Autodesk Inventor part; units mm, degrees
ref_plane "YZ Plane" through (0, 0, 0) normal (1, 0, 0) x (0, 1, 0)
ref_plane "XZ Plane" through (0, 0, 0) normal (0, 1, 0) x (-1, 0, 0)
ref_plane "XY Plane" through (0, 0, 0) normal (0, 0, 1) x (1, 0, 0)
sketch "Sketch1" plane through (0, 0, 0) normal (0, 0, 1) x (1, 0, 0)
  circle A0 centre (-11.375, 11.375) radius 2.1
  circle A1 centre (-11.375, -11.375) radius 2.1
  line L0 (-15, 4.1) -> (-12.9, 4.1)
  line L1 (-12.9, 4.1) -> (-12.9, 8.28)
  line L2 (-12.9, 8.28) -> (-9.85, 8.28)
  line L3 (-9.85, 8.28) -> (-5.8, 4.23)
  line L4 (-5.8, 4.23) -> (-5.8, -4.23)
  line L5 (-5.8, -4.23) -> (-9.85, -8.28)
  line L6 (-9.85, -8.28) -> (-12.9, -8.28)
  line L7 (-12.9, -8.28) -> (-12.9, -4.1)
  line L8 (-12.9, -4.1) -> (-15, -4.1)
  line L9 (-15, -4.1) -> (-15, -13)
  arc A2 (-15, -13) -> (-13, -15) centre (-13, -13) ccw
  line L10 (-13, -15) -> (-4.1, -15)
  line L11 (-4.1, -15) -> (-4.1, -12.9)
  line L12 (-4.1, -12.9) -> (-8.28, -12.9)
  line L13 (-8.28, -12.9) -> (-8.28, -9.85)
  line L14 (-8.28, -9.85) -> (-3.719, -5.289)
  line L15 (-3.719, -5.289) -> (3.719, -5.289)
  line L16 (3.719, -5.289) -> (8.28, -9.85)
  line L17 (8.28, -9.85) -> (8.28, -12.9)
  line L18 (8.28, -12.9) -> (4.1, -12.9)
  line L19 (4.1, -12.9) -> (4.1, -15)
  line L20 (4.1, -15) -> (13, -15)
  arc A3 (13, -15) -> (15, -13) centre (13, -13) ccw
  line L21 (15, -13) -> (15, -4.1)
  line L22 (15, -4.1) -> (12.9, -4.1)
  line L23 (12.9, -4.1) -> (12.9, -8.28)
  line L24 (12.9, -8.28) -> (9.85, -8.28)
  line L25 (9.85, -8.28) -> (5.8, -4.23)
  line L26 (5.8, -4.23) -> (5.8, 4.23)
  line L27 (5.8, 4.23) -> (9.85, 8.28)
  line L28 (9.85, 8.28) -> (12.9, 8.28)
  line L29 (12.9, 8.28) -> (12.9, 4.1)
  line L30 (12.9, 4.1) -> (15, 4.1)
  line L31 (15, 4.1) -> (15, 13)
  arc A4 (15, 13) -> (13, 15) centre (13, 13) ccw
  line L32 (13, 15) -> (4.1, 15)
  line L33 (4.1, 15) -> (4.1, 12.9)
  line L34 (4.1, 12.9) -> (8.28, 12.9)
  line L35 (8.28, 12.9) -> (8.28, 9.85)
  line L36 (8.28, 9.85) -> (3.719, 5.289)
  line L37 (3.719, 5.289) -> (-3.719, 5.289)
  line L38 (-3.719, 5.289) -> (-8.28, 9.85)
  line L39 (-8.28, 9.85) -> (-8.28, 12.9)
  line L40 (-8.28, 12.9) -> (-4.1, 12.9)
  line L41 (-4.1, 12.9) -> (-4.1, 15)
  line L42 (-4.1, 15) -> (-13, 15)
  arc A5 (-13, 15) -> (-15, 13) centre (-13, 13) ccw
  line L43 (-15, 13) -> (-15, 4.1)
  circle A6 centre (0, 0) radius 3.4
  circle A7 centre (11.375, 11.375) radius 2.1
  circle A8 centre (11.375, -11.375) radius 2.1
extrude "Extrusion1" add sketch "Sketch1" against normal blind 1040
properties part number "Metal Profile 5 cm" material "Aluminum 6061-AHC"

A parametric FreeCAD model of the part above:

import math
import FreeCAD as App
import Part
import Sketcher
from FreeCAD import Vector

doc = App.newDocument("Part")
body = doc.addObject("PartDesign::Body", "Body")

# Sketch on XY plane
sketch1 = body.newObject("Sketcher::SketchObject", "Sketch")
sketch1.AttachmentSupport = (doc.getObject("XY_Plane"), [""])
sketch1.MapMode = "FlatFace"
sketch1.addGeometry(Part.LineSegment(Vector(-15, 13, 0), Vector(-15, 4.1, 0)), False)
sketch1.addGeometry(Part.LineSegment(Vector(-15, 4.1, 0), Vector(-12.9, 4.1, 0)), False)
sketch1.addGeometry(Part.LineSegment(Vector(-12.9, 4.1, 0), Vector(-12.9, 8.28, 0)), False)
sketch1.addGeometry(Part.LineSegment(Vector(-12.9, 8.28, 0), Vector(-9.85, 8.28, 0)), False)
sketch1.addGeometry(Part.LineSegment(Vector(-9.85, 8.28, 0), Vector(-5.8, 4.23, 0)), False)
sketch1.addGeometry(Part.LineSegment(Vector(-5.8, 4.23, 0), Vector(-5.8, -4.23, 0)), False)
sketch1.addGeometry(Part.LineSegment(Vector(-5.8, -4.23, 0), Vector(-9.85, -8.28, 0)), False)
sketch1.addGeometry(Part.LineSegment(Vector(-9.85, -8.28, 0), Vector(-12.9, -8.28, 0)), False)
sketch1.addGeometry(Part.LineSegment(Vector(-12.9, -8.28, 0), Vector(-12.9, -4.1, 0)), False)
sketch1.addGeometry(Part.LineSegment(Vector(-12.9, -4.1, 0), Vector(-15, -4.1, 0)), False)
sketch1.addGeometry(Part.LineSegment(Vector(-15, -4.1, 0), Vector(-15, -13, 0)), False)
sketch1.addGeometry(Part.ArcOfCircle(Part.Circle(Vector(-13, -13, 0), Vector(0, 0, 1), 2), math.radians(180), math.radians(270)), False)
sketch1.addGeometry(Part.LineSegment(Vector(-13, -15, 0), Vector(-4.1, -15, 0)), False)
sketch1.addGeometry(Part.LineSegment(Vector(-4.1, -15, 0), Vector(-4.1, -12.9, 0)), False)
sketch1.addGeometry(Part.LineSegment(Vector(-4.1, -12.9, 0), Vector(-8.28, -12.9, 0)), False)
sketch1.addGeometry(Part.LineSegment(Vector(-8.28, -12.9, 0), Vector(-8.28, -9.85, 0)), False)
sketch1.addGeometry(Part.LineSegment(Vector(-8.28, -9.85, 0), Vector(-3.719, -5.289, 0)), False)
sketch1.addGeometry(Part.LineSegment(Vector(-3.719, -5.289, 0), Vector(3.719, -5.289, 0)), False)
sketch1.addGeometry(Part.LineSegment(Vector(3.719, -5.289, 0), Vector(8.28, -9.85, 0)), False)
sketch1.addGeometry(Part.LineSegment(Vector(8.28, -9.85, 0), Vector(8.28, -12.9, 0)), False)
sketch1.addGeometry(Part.LineSegment(Vector(8.28, -12.9, 0), Vector(4.1, -12.9, 0)), False)
sketch1.addGeometry(Part.LineSegment(Vector(4.1, -12.9, 0), Vector(4.1, -15, 0)), False)
sketch1.addGeometry(Part.LineSegment(Vector(4.1, -15, 0), Vector(13, -15, 0)), False)
sketch1.addGeometry(Part.ArcOfCircle(Part.Circle(Vector(13, -13, 0), Vector(0, 0, 1), 2), math.radians(-90), math.radians(0)), False)
sketch1.addGeometry(Part.LineSegment(Vector(15, -13, 0), Vector(15, -4.1, 0)), False)
sketch1.addGeometry(Part.LineSegment(Vector(15, -4.1, 0), Vector(12.9, -4.1, 0)), False)
sketch1.addGeometry(Part.LineSegment(Vector(12.9, -4.1, 0), Vector(12.9, -8.28, 0)), False)
sketch1.addGeometry(Part.LineSegment(Vector(12.9, -8.28, 0), Vector(9.85, -8.28, 0)), False)
sketch1.addGeometry(Part.LineSegment(Vector(9.85, -8.28, 0), Vector(5.8, -4.23, 0)), False)
sketch1.addGeometry(Part.LineSegment(Vector(5.8, -4.23, 0), Vector(5.8, 4.23, 0)), False)
sketch1.addGeometry(Part.LineSegment(Vector(5.8, 4.23, 0), Vector(9.85, 8.28, 0)), False)
sketch1.addGeometry(Part.LineSegment(Vector(9.85, 8.28, 0), Vector(12.9, 8.28, 0)), False)
sketch1.addGeometry(Part.LineSegment(Vector(12.9, 8.28, 0), Vector(12.9, 4.1, 0)), False)
sketch1.addGeometry(Part.LineSegment(Vector(12.9, 4.1, 0), Vector(15, 4.1, 0)), False)
sketch1.addGeometry(Part.LineSegment(Vector(15, 4.1, 0), Vector(15, 13, 0)), False)
sketch1.addGeometry(Part.ArcOfCircle(Part.Circle(Vector(13, 13, 0), Vector(0, 0, 1), 2), math.radians(0), math.radians(90)), False)
sketch1.addGeometry(Part.LineSegment(Vector(13, 15, 0), Vector(4.1, 15, 0)), False)
sketch1.addGeometry(Part.LineSegment(Vector(4.1, 15, 0), Vector(4.1, 12.9, 0)), False)
sketch1.addGeometry(Part.LineSegment(Vector(4.1, 12.9, 0), Vector(8.28, 12.9, 0)), False)
sketch1.addGeometry(Part.LineSegment(Vector(8.28, 12.9, 0), Vector(8.28, 9.85, 0)), False)
sketch1.addGeometry(Part.LineSegment(Vector(8.28, 9.85, 0), Vector(3.719, 5.289, 0)), False)
sketch1.addGeometry(Part.LineSegment(Vector(3.719, 5.289, 0), Vector(-3.719, 5.289, 0)), False)
sketch1.addGeometry(Part.LineSegment(Vector(-3.719, 5.289, 0), Vector(-8.28, 9.85, 0)), False)
sketch1.addGeometry(Part.LineSegment(Vector(-8.28, 9.85, 0), Vector(-8.28, 12.9, 0)), False)
sketch1.addGeometry(Part.LineSegment(Vector(-8.28, 12.9, 0), Vector(-4.1, 12.9, 0)), False)
sketch1.addGeometry(Part.LineSegment(Vector(-4.1, 12.9, 0), Vector(-4.1, 15, 0)), False)
sketch1.addGeometry(Part.LineSegment(Vector(-4.1, 15, 0), Vector(-13, 15, 0)), False)
sketch1.addGeometry(Part.ArcOfCircle(Part.Circle(Vector(-13, 13, 0), Vector(0, 0, 1), 2), math.radians(90), math.radians(180)), False)
sketch1.addGeometry(Part.Circle(Vector(-11.375, -11.375, 0), Vector(0, 0, 1), 2.1), False)
sketch1.addGeometry(Part.Circle(Vector(11.375, -11.375, 0), Vector(0, 0, 1), 2.1), False)
sketch1.addGeometry(Part.Circle(Vector(-11.375, 11.375, 0), Vector(0, 0, 1), 2.1), False)
sketch1.addGeometry(Part.Circle(Vector(0, 0, 0), Vector(0, 0, 1), 3.4), False)
sketch1.addGeometry(Part.Circle(Vector(11.375, 11.375, 0), Vector(0, 0, 1), 2.1), False)
sketch1.addConstraint(Sketcher.Constraint("Coincident", 0, 2, 1, 1))
sketch1.addConstraint(Sketcher.Constraint("Coincident", 1, 2, 2, 1))
sketch1.addConstraint(Sketcher.Constraint("Coincident", 2, 2, 3, 1))
sketch1.addConstraint(Sketcher.Constraint("Coincident", 3, 2, 4, 1))
sketch1.addConstraint(Sketcher.Constraint("Coincident", 4, 2, 5, 1))
sketch1.addConstraint(Sketcher.Constraint("Coincident", 5, 2, 6, 1))
sketch1.addConstraint(Sketcher.Constraint("Coincident", 6, 2, 7, 1))
sketch1.addConstraint(Sketcher.Constraint("Coincident", 7, 2, 8, 1))
sketch1.addConstraint(Sketcher.Constraint("Coincident", 8, 2, 9, 1))
sketch1.addConstraint(Sketcher.Constraint("Coincident", 9, 2, 10, 1))
sketch1.addConstraint(Sketcher.Constraint("Tangent", 10, 2, 11, 1))
sketch1.addConstraint(Sketcher.Constraint("Tangent", 11, 2, 12, 1))
sketch1.addConstraint(Sketcher.Constraint("Coincident", 12, 2, 13, 1))
sketch1.addConstraint(Sketcher.Constraint("Coincident", 13, 2, 14, 1))
sketch1.addConstraint(Sketcher.Constraint("Coincident", 14, 2, 15, 1))
sketch1.addConstraint(Sketcher.Constraint("Coincident", 15, 2, 16, 1))
sketch1.addConstraint(Sketcher.Constraint("Coincident", 16, 2, 17, 1))
sketch1.addConstraint(Sketcher.Constraint("Coincident", 17, 2, 18, 1))
sketch1.addConstraint(Sketcher.Constraint("Coincident", 18, 2, 19, 1))
sketch1.addConstraint(Sketcher.Constraint("Coincident", 19, 2, 20, 1))
sketch1.addConstraint(Sketcher.Constraint("Coincident", 20, 2, 21, 1))
sketch1.addConstraint(Sketcher.Constraint("Coincident", 21, 2, 22, 1))
sketch1.addConstraint(Sketcher.Constraint("Tangent", 22, 2, 23, 1))
sketch1.addConstraint(Sketcher.Constraint("Tangent", 23, 2, 24, 1))
sketch1.addConstraint(Sketcher.Constraint("Coincident", 24, 2, 25, 1))
sketch1.addConstraint(Sketcher.Constraint("Coincident", 25, 2, 26, 1))
sketch1.addConstraint(Sketcher.Constraint("Coincident", 26, 2, 27, 1))
sketch1.addConstraint(Sketcher.Constraint("Coincident", 27, 2, 28, 1))
sketch1.addConstraint(Sketcher.Constraint("Coincident", 28, 2, 29, 1))
sketch1.addConstraint(Sketcher.Constraint("Coincident", 29, 2, 30, 1))
sketch1.addConstraint(Sketcher.Constraint("Coincident", 30, 2, 31, 1))
sketch1.addConstraint(Sketcher.Constraint("Coincident", 31, 2, 32, 1))
sketch1.addConstraint(Sketcher.Constraint("Coincident", 32, 2, 33, 1))
sketch1.addConstraint(Sketcher.Constraint("Coincident", 33, 2, 34, 1))
sketch1.addConstraint(Sketcher.Constraint("Tangent", 34, 2, 35, 1))
sketch1.addConstraint(Sketcher.Constraint("Tangent", 35, 2, 36, 1))
sketch1.addConstraint(Sketcher.Constraint("Coincident", 36, 2, 37, 1))
sketch1.addConstraint(Sketcher.Constraint("Coincident", 37, 2, 38, 1))
sketch1.addConstraint(Sketcher.Constraint("Coincident", 38, 2, 39, 1))
sketch1.addConstraint(Sketcher.Constraint("Coincident", 39, 2, 40, 1))
sketch1.addConstraint(Sketcher.Constraint("Coincident", 40, 2, 41, 1))
sketch1.addConstraint(Sketcher.Constraint("Coincident", 41, 2, 42, 1))
sketch1.addConstraint(Sketcher.Constraint("Coincident", 42, 2, 43, 1))
sketch1.addConstraint(Sketcher.Constraint("Coincident", 43, 2, 44, 1))
sketch1.addConstraint(Sketcher.Constraint("Coincident", 44, 2, 45, 1))
sketch1.addConstraint(Sketcher.Constraint("Coincident", 45, 2, 46, 1))
sketch1.addConstraint(Sketcher.Constraint("Tangent", 46, 2, 47, 1))
sketch1.addConstraint(Sketcher.Constraint("Tangent", 47, 2, 0, 1))
sketch1.addConstraint(Sketcher.Constraint("Vertical", 0))
sketch1.addConstraint(Sketcher.Constraint("Horizontal", 1))
sketch1.addConstraint(Sketcher.Constraint("Vertical", 2))
sketch1.addConstraint(Sketcher.Constraint("Horizontal", 3))
sketch1.addConstraint(Sketcher.Constraint("Vertical", 5))
sketch1.addConstraint(Sketcher.Constraint("Horizontal", 7))
sketch1.addConstraint(Sketcher.Constraint("Vertical", 8))
sketch1.addConstraint(Sketcher.Constraint("Horizontal", 9))
sketch1.addConstraint(Sketcher.Constraint("Vertical", 10))
sketch1.addConstraint(Sketcher.Constraint("Horizontal", 12))
sketch1.addConstraint(Sketcher.Constraint("Vertical", 13))
sketch1.addConstraint(Sketcher.Constraint("Horizontal", 14))
sketch1.addConstraint(Sketcher.Constraint("Vertical", 15))
sketch1.addConstraint(Sketcher.Constraint("Horizontal", 17))
sketch1.addConstraint(Sketcher.Constraint("Vertical", 19))
sketch1.addConstraint(Sketcher.Constraint("Horizontal", 20))
sketch1.addConstraint(Sketcher.Constraint("Vertical", 21))
sketch1.addConstraint(Sketcher.Constraint("Horizontal", 22))
sketch1.addConstraint(Sketcher.Constraint("Vertical", 24))
sketch1.addConstraint(Sketcher.Constraint("Horizontal", 25))
sketch1.addConstraint(Sketcher.Constraint("Vertical", 26))
sketch1.addConstraint(Sketcher.Constraint("Horizontal", 27))
sketch1.addConstraint(Sketcher.Constraint("Vertical", 29))
sketch1.addConstraint(Sketcher.Constraint("Horizontal", 31))
sketch1.addConstraint(Sketcher.Constraint("Vertical", 32))
sketch1.addConstraint(Sketcher.Constraint("Horizontal", 33))
sketch1.addConstraint(Sketcher.Constraint("Vertical", 34))
sketch1.addConstraint(Sketcher.Constraint("Horizontal", 36))
sketch1.addConstraint(Sketcher.Constraint("Vertical", 37))
sketch1.addConstraint(Sketcher.Constraint("Horizontal", 38))
sketch1.addConstraint(Sketcher.Constraint("Vertical", 39))
sketch1.addConstraint(Sketcher.Constraint("Horizontal", 41))
sketch1.addConstraint(Sketcher.Constraint("Vertical", 43))
sketch1.addConstraint(Sketcher.Constraint("Horizontal", 44))
sketch1.addConstraint(Sketcher.Constraint("Vertical", 45))
sketch1.addConstraint(Sketcher.Constraint("Horizontal", 46))
sketch1.addConstraint(Sketcher.Constraint("Coincident", 51, 3, -1, 1))
sketch1.addConstraint(Sketcher.Constraint("Equal", 11, 23))
sketch1.addConstraint(Sketcher.Constraint("Equal", 23, 35))
sketch1.addConstraint(Sketcher.Constraint("Equal", 35, 47))
sketch1.addConstraint(Sketcher.Constraint("Equal", 48, 49))
sketch1.addConstraint(Sketcher.Constraint("Equal", 49, 50))
sketch1.addConstraint(Sketcher.Constraint("Equal", 50, 52))
sketch1.addConstraint(Sketcher.Constraint("Symmetric", 11, 3, 35, 3, -1, 1))
sketch1.addConstraint(Sketcher.Constraint("Symmetric", 23, 3, 47, 3, -1, 1))
sketch1.addConstraint(Sketcher.Constraint("Symmetric", 49, 3, 50, 3, -1, 1))
sketch1.addConstraint(Sketcher.Constraint("Symmetric", 48, 3, 52, 3, -1, 1))
sketch1.addConstraint(Sketcher.Constraint("Symmetric", 1, 2, 25, 2, -1, 1))
sketch1.addConstraint(Sketcher.Constraint("Symmetric", 3, 2, 27, 2, -1, 1))
sketch1.addConstraint(Sketcher.Constraint("Symmetric", 4, 2, 28, 2, -1, 1))
sketch1.addConstraint(Sketcher.Constraint("Symmetric", 6, 2, 30, 2, -1, 1))
sketch1.addConstraint(Sketcher.Constraint("Symmetric", 8, 2, 32, 2, -1, 1))
sketch1.addConstraint(Sketcher.Constraint("Symmetric", 13, 2, 37, 2, -1, 1))
sketch1.addConstraint(Sketcher.Constraint("Symmetric", 15, 2, 39, 2, -1, 1))
sketch1.addConstraint(Sketcher.Constraint("Symmetric", 16, 2, 40, 2, -1, 1))
sketch1.addConstraint(Sketcher.Constraint("Symmetric", 18, 2, 42, 2, -1, 1))
sketch1.addConstraint(Sketcher.Constraint("Symmetric", 20, 2, 44, 2, -1, 1))
sketch1.addConstraint(Sketcher.Constraint("Symmetric", 11, 3, 23, 3, -2))
sketch1.addConstraint(Sketcher.Constraint("Symmetric", 48, 3, 49, 3, -2))
sketch1.addConstraint(Sketcher.Constraint("Symmetric", 15, 2, 18, 2, -2))
sketch1.addConstraint(Sketcher.Constraint("Symmetric", 13, 2, 20, 2, -2))
sketch1.addConstraint(Sketcher.Constraint("Symmetric", 8, 2, 25, 2, -2))
sketch1.addConstraint(Sketcher.Constraint("Symmetric", 6, 2, 27, 2, -2))
sketch1.addConstraint(Sketcher.Constraint("Perpendicular", 4, 6))
sketch1.addConstraint(Sketcher.Constraint("Parallel", 6, 16))
sketch1.addConstraint(Sketcher.Constraint("Perpendicular", 16, 18))
sketch1.addConstraint(Sketcher.Constraint("Perpendicular", 28, 30))
sketch1.addConstraint(Sketcher.Constraint("Perpendicular", 40, 42))
sketch1.addConstraint(Sketcher.Constraint("Horizontal", 5, 2, 28, 2))
sketch1.addConstraint(Sketcher.Constraint("Equal", 46, 0))
sketch1.addConstraint(Sketcher.Constraint("Equal", 44, 2))
sketch1.addConstraint(Sketcher.Constraint("Equal", 33, 13))
sketch1.addConstraint(Sketcher.Constraint("Equal", 31, 15))
sketch1.addConstraint(Sketcher.Constraint("Radius", 11, 2.0))
sketch1.addConstraint(Sketcher.Constraint("Diameter", 48, 4.2))
sketch1.addConstraint(Sketcher.Constraint("Diameter", 51, 6.8))
sketch1.addConstraint(Sketcher.Constraint("DistanceX", 1, 1, 1, 2, 2.1))
sketch1.addConstraint(Sketcher.Constraint("DistanceX", 12, 1, 12, 2, 8.9))
sketch1.addConstraint(Sketcher.Constraint("DistanceX", 11, 3, -1, 1, 13.0))
sketch1.addConstraint(Sketcher.Constraint("DistanceY", 11, 3, -1, 1, 13.0))
sketch1.addConstraint(Sketcher.Constraint("DistanceX", 3, 1, 3, 2, 3.05))
sketch1.addConstraint(Sketcher.Constraint("DistanceX", 14, 2, 14, 1, 4.18))
sketch1.addConstraint(Sketcher.Constraint("DistanceY", 5, 2, 5, 1, 8.46))
sketch1.addConstraint(Sketcher.Constraint("DistanceX", 17, 1, 17, 2, 7.438))
sketch1.addConstraint(Sketcher.Constraint("DistanceX", 48, 3, 49, 3, 22.75))
sketch1.addConstraint(Sketcher.Constraint("DistanceY", 48, 3, 50, 3, 22.75))
pad1 = body.newObject("PartDesign::Pad", "Pad")
pad1.Profile = sketch1
pad1.Length = 1040
pad1.Reversed = True

doc.recompute()
